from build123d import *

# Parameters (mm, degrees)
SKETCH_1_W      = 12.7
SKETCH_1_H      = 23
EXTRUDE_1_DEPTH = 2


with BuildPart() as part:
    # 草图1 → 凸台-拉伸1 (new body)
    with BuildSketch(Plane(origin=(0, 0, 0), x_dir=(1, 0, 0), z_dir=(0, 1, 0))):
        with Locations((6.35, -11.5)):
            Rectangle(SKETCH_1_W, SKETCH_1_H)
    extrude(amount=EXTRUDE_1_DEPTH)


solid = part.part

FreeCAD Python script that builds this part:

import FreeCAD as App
import Part
import Sketcher
from FreeCAD import Vector

doc = App.newDocument("Part")
body = doc.addObject("PartDesign::Body", "Body")

sketch1 = body.newObject("Sketcher::SketchObject", "Sketch")
sketch1.AttachmentSupport = (doc.getObject("XZ_Plane"), [""])
sketch1.MapMode = "FlatFace"
sketch1.addGeometry(Part.LineSegment(Vector(0, 0, 0), Vector(0, 23, 0)), False)
sketch1.addGeometry(Part.LineSegment(Vector(0, 23, 0), Vector(13, 23, 0)), False)
sketch1.addGeometry(Part.LineSegment(Vector(13, 23, 0), Vector(13, 0, 0)), False)
sketch1.addGeometry(Part.LineSegment(Vector(13, 0, 0), Vector(0, 0, 0)), False)
sketch1.addConstraint(Sketcher.Constraint("Coincident", 0, 2, 1, 1))
sketch1.addConstraint(Sketcher.Constraint("Coincident", 1, 2, 2, 1))
sketch1.addConstraint(Sketcher.Constraint("Coincident", 2, 2, 3, 1))
sketch1.addConstraint(Sketcher.Constraint("Coincident", 3, 2, 0, 1))
sketch1.addConstraint(Sketcher.Constraint("Vertical", 0))
sketch1.addConstraint(Sketcher.Constraint("Horizontal", 1))
sketch1.addConstraint(Sketcher.Constraint("Vertical", 2))
sketch1.addConstraint(Sketcher.Constraint("Horizontal", 3))
sketch1.addConstraint(Sketcher.Constraint("Coincident", 3, 2, -1, 1))
sketch1.addConstraint(Sketcher.Constraint("DistanceY", 0, 1, 0, 2, 23.0))
sketch1.addConstraint(Sketcher.Constraint("DistanceX", 1, 1, 1, 2, 12.7))
pad1 = body.newObject("PartDesign::Pad", "Pad")
pad1.Profile = sketch1
pad1.Length = 2
pad1.Reversed = True

doc.recompute()
